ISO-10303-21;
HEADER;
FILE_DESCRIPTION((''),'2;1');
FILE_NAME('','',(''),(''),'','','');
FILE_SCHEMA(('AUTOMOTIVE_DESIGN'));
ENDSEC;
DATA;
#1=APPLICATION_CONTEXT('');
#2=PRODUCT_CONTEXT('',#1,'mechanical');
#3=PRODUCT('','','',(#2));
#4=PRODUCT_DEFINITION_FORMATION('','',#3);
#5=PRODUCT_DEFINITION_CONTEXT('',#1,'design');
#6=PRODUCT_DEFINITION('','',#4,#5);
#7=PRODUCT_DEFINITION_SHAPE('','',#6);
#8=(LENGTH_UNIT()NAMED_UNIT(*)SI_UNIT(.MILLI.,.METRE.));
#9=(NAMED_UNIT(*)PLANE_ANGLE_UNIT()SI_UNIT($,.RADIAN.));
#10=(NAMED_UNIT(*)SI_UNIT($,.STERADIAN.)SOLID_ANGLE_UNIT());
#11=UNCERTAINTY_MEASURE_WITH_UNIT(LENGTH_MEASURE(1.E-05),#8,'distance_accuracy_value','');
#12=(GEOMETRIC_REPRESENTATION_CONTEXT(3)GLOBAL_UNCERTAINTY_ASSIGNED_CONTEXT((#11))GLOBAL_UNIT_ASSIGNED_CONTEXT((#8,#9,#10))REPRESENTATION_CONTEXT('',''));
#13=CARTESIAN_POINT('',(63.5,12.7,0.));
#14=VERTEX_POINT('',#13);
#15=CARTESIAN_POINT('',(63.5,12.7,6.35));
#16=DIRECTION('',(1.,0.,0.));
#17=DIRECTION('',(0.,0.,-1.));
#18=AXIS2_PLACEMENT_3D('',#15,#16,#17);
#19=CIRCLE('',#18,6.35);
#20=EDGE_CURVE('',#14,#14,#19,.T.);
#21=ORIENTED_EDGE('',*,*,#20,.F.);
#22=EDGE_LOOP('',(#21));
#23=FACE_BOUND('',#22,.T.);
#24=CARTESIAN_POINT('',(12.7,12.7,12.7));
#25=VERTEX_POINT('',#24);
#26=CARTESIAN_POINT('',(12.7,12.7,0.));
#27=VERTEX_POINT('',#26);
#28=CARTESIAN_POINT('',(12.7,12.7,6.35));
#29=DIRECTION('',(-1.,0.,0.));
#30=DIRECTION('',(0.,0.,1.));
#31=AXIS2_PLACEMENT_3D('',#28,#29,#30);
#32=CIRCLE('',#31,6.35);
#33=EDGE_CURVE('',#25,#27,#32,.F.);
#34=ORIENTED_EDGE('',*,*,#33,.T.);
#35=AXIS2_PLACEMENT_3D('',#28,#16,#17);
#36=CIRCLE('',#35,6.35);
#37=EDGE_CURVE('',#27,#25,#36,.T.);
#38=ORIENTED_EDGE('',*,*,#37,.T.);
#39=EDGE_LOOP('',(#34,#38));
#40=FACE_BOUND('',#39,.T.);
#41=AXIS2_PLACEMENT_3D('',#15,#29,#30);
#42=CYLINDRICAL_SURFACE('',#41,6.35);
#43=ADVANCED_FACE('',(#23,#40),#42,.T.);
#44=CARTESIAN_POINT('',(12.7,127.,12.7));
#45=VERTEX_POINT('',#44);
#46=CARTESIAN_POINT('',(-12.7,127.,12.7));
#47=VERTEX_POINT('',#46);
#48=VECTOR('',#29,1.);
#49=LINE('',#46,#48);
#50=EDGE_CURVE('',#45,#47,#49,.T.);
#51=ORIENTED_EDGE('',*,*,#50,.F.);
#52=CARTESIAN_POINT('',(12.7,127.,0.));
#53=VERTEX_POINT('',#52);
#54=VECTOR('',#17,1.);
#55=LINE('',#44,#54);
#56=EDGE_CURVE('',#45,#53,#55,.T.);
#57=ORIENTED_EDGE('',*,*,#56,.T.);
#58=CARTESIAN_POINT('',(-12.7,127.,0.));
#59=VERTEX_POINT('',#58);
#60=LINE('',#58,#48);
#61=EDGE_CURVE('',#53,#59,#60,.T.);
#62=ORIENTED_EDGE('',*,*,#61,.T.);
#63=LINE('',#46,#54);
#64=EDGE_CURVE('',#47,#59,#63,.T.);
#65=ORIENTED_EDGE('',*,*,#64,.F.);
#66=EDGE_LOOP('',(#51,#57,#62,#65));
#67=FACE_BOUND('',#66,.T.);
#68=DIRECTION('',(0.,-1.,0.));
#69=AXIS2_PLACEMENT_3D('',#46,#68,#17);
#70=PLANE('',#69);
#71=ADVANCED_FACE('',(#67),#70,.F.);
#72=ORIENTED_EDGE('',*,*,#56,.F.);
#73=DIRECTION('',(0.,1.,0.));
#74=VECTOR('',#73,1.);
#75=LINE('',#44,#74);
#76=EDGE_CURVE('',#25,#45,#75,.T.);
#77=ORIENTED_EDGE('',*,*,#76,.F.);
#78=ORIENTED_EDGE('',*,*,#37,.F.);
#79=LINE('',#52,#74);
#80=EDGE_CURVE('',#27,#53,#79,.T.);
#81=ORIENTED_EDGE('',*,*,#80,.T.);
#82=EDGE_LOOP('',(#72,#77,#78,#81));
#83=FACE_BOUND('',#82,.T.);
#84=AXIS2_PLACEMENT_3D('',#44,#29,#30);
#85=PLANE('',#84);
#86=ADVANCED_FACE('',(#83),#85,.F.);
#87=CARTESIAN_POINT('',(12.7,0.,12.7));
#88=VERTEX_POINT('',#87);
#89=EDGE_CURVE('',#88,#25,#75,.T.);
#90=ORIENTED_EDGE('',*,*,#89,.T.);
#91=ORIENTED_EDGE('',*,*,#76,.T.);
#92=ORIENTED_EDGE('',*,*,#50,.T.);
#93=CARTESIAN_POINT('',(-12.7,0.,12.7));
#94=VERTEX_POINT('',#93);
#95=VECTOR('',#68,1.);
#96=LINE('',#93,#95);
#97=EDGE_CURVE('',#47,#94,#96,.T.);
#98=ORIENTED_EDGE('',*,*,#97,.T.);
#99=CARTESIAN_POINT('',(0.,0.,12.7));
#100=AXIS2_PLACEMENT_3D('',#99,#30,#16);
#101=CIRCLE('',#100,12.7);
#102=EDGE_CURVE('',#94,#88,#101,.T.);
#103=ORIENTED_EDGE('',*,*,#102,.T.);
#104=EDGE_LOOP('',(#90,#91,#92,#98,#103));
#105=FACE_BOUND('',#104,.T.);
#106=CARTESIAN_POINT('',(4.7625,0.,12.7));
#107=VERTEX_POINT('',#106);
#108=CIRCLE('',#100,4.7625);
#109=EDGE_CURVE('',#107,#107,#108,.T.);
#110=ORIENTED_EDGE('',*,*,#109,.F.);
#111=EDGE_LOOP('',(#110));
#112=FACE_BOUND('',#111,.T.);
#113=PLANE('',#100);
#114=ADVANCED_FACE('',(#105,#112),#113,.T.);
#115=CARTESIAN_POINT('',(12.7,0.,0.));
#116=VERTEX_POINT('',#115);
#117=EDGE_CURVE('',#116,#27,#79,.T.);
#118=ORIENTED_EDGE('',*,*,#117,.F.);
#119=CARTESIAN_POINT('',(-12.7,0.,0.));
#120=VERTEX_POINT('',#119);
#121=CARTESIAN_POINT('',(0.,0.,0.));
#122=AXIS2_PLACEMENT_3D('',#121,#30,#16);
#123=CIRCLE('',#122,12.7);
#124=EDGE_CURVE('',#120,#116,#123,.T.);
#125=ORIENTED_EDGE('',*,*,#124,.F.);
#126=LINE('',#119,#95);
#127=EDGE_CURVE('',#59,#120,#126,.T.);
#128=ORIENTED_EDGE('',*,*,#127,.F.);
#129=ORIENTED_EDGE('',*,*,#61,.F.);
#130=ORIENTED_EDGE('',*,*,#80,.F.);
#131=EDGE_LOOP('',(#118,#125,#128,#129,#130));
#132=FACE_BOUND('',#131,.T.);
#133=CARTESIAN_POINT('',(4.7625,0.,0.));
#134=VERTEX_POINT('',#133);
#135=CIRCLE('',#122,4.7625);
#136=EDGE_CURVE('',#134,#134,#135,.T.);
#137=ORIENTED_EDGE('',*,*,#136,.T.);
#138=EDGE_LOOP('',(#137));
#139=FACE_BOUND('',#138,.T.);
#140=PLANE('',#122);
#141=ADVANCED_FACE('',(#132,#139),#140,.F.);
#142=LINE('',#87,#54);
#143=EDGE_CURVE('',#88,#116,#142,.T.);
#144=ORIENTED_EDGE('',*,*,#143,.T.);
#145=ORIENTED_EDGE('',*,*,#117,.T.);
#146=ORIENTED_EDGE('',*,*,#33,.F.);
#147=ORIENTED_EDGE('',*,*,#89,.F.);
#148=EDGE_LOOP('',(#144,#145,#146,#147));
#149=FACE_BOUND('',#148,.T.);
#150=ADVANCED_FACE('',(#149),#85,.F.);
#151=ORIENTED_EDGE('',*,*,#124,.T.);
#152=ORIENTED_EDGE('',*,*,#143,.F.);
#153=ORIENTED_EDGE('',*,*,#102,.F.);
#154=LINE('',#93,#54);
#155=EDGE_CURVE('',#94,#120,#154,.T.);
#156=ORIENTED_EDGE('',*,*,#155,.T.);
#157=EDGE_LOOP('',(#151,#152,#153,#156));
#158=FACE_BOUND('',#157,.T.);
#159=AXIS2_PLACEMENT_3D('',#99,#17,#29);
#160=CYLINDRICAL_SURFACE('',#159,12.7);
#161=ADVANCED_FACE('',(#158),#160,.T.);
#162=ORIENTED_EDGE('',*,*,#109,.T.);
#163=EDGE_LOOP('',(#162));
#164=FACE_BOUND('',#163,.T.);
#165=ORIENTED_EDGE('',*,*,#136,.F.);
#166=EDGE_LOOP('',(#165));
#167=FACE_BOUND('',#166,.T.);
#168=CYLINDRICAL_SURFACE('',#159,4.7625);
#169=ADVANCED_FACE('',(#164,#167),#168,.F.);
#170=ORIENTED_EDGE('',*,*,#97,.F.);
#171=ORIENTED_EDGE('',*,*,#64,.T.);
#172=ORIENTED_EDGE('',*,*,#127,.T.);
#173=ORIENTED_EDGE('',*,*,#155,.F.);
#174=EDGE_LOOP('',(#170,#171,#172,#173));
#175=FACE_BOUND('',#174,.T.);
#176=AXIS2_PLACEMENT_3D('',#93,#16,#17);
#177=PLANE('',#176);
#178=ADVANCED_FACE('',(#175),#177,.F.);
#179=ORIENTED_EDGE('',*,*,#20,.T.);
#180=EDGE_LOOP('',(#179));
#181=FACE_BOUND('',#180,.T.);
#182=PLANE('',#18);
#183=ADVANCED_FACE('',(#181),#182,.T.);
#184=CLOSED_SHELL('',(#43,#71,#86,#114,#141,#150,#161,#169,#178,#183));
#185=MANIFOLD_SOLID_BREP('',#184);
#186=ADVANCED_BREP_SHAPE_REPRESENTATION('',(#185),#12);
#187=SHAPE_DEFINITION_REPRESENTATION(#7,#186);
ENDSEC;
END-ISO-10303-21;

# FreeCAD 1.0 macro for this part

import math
import FreeCAD as App
import Part
import Sketcher

V = App.Vector
Q = App.Units.Quantity

doc = App.newDocument("Part")
params = doc.addObject("Spreadsheet::Sheet", "Params")
for row, (alias, value) in enumerate([
    ("sketch1_radius", "0.5 in"),
    ("sketch1_height", "5 in"),
    ("sketch1_diameter", "0.375 in"),
    ("pad1_length", "0.5 in"),
    ("sketch2_diameter", "0.5 in"),
    ("pad2_length", "2 in"),
], start=1):
    params.set(f"A{row}", alias)
    params.set(f"B{row}", "=" + value)
    params.setAlias(f"B{row}", alias)

body = doc.addObject("PartDesign::Body", "Body")

# Sketch on XY plane
sketch1 = doc.addObject("Sketcher::SketchObject", "Sketch")
body.addObject(sketch1)
sketch1.AttachmentSupport = (doc.XY_Plane, [""])
sketch1.MapMode = "FlatFace"
sketch1.addGeometry([
    Part.LineSegment(V(-12.7, 127, 0), V(-12.7, 0, 0)),  # 0
    Part.ArcOfCircle(Part.Circle(V(0, 0, 0), V(0, 0, 1), 12.7), math.radians(180), math.radians(360)),  # 1
    Part.LineSegment(V(12.7, 0, 0), V(12.7, 127, 0)),  # 2
    Part.LineSegment(V(12.7, 127, 0), V(-12.7, 127, 0)),  # 3
    Part.Circle(V(0, 0, 0), V(0, 0, 1), 4.8),  # 4
], False)
sketch1.addConstraint([
    Sketcher.Constraint("Tangent", 0, 2, 1, 1),
    Sketcher.Constraint("Tangent", 1, 2, 2, 1),
    Sketcher.Constraint("Coincident", 2, 2, 3, 1),
    Sketcher.Constraint("Coincident", 3, 2, 0, 1),
    Sketcher.Constraint("Vertical", 0),
    Sketcher.Constraint("Vertical", 2),
    Sketcher.Constraint("Horizontal", 3),
    Sketcher.Constraint("Coincident", 1, 3, -1, 1),
    Sketcher.Constraint("Coincident", 4, 3, -1, 1),
    Sketcher.Constraint("Radius", 1, Q("0.5 in")),
    Sketcher.Constraint("DistanceY", 0, 2, 0, 1, Q("5 in")),
    Sketcher.Constraint("Diameter", 4, Q("0.375 in")),
])
sketch1.setExpression("Constraints[9]", "Params.sketch1_radius")
sketch1.setExpression("Constraints[10]", "Params.sketch1_height")
sketch1.setExpression("Constraints[11]", "Params.sketch1_diameter")
pad1 = doc.addObject("PartDesign::Pad", "Pad")
body.addObject(pad1)
pad1.Profile = sketch1
pad1.setExpression("Length", "Params.pad1_length")

# Sketch on YZ plane
sketch2 = doc.addObject("Sketcher::SketchObject", "Sketch001")
body.addObject(sketch2)
sketch2.AttachmentSupport = (doc.YZ_Plane, [""])
sketch2.MapMode = "FlatFace"
sketch2.AttachmentOffset = App.Placement(V(0, 0, 0.5 * 25.4), App.Rotation())
sketch2.addGeometry(Part.Circle(V(13, 6, 0), V(0, 0, 1), 6), False)
sketch2.addConstraint([
    Sketcher.Constraint("Diameter", 0, Q("0.5 in")),
    Sketcher.Constraint("DistanceX", -1, 1, 0, 3, Q("0.5 in")),
    Sketcher.Constraint("DistanceY", -1, 1, 0, 3, Q("0.25 in")),
])
sketch2.setExpression("Constraints[0]", "Params.sketch2_diameter")
pad2 = doc.addObject("PartDesign::Pad", "Pad001")
body.addObject(pad2)
pad2.Profile = sketch2
pad2.setExpression("Length", "Params.pad2_length")

doc.recompute()
